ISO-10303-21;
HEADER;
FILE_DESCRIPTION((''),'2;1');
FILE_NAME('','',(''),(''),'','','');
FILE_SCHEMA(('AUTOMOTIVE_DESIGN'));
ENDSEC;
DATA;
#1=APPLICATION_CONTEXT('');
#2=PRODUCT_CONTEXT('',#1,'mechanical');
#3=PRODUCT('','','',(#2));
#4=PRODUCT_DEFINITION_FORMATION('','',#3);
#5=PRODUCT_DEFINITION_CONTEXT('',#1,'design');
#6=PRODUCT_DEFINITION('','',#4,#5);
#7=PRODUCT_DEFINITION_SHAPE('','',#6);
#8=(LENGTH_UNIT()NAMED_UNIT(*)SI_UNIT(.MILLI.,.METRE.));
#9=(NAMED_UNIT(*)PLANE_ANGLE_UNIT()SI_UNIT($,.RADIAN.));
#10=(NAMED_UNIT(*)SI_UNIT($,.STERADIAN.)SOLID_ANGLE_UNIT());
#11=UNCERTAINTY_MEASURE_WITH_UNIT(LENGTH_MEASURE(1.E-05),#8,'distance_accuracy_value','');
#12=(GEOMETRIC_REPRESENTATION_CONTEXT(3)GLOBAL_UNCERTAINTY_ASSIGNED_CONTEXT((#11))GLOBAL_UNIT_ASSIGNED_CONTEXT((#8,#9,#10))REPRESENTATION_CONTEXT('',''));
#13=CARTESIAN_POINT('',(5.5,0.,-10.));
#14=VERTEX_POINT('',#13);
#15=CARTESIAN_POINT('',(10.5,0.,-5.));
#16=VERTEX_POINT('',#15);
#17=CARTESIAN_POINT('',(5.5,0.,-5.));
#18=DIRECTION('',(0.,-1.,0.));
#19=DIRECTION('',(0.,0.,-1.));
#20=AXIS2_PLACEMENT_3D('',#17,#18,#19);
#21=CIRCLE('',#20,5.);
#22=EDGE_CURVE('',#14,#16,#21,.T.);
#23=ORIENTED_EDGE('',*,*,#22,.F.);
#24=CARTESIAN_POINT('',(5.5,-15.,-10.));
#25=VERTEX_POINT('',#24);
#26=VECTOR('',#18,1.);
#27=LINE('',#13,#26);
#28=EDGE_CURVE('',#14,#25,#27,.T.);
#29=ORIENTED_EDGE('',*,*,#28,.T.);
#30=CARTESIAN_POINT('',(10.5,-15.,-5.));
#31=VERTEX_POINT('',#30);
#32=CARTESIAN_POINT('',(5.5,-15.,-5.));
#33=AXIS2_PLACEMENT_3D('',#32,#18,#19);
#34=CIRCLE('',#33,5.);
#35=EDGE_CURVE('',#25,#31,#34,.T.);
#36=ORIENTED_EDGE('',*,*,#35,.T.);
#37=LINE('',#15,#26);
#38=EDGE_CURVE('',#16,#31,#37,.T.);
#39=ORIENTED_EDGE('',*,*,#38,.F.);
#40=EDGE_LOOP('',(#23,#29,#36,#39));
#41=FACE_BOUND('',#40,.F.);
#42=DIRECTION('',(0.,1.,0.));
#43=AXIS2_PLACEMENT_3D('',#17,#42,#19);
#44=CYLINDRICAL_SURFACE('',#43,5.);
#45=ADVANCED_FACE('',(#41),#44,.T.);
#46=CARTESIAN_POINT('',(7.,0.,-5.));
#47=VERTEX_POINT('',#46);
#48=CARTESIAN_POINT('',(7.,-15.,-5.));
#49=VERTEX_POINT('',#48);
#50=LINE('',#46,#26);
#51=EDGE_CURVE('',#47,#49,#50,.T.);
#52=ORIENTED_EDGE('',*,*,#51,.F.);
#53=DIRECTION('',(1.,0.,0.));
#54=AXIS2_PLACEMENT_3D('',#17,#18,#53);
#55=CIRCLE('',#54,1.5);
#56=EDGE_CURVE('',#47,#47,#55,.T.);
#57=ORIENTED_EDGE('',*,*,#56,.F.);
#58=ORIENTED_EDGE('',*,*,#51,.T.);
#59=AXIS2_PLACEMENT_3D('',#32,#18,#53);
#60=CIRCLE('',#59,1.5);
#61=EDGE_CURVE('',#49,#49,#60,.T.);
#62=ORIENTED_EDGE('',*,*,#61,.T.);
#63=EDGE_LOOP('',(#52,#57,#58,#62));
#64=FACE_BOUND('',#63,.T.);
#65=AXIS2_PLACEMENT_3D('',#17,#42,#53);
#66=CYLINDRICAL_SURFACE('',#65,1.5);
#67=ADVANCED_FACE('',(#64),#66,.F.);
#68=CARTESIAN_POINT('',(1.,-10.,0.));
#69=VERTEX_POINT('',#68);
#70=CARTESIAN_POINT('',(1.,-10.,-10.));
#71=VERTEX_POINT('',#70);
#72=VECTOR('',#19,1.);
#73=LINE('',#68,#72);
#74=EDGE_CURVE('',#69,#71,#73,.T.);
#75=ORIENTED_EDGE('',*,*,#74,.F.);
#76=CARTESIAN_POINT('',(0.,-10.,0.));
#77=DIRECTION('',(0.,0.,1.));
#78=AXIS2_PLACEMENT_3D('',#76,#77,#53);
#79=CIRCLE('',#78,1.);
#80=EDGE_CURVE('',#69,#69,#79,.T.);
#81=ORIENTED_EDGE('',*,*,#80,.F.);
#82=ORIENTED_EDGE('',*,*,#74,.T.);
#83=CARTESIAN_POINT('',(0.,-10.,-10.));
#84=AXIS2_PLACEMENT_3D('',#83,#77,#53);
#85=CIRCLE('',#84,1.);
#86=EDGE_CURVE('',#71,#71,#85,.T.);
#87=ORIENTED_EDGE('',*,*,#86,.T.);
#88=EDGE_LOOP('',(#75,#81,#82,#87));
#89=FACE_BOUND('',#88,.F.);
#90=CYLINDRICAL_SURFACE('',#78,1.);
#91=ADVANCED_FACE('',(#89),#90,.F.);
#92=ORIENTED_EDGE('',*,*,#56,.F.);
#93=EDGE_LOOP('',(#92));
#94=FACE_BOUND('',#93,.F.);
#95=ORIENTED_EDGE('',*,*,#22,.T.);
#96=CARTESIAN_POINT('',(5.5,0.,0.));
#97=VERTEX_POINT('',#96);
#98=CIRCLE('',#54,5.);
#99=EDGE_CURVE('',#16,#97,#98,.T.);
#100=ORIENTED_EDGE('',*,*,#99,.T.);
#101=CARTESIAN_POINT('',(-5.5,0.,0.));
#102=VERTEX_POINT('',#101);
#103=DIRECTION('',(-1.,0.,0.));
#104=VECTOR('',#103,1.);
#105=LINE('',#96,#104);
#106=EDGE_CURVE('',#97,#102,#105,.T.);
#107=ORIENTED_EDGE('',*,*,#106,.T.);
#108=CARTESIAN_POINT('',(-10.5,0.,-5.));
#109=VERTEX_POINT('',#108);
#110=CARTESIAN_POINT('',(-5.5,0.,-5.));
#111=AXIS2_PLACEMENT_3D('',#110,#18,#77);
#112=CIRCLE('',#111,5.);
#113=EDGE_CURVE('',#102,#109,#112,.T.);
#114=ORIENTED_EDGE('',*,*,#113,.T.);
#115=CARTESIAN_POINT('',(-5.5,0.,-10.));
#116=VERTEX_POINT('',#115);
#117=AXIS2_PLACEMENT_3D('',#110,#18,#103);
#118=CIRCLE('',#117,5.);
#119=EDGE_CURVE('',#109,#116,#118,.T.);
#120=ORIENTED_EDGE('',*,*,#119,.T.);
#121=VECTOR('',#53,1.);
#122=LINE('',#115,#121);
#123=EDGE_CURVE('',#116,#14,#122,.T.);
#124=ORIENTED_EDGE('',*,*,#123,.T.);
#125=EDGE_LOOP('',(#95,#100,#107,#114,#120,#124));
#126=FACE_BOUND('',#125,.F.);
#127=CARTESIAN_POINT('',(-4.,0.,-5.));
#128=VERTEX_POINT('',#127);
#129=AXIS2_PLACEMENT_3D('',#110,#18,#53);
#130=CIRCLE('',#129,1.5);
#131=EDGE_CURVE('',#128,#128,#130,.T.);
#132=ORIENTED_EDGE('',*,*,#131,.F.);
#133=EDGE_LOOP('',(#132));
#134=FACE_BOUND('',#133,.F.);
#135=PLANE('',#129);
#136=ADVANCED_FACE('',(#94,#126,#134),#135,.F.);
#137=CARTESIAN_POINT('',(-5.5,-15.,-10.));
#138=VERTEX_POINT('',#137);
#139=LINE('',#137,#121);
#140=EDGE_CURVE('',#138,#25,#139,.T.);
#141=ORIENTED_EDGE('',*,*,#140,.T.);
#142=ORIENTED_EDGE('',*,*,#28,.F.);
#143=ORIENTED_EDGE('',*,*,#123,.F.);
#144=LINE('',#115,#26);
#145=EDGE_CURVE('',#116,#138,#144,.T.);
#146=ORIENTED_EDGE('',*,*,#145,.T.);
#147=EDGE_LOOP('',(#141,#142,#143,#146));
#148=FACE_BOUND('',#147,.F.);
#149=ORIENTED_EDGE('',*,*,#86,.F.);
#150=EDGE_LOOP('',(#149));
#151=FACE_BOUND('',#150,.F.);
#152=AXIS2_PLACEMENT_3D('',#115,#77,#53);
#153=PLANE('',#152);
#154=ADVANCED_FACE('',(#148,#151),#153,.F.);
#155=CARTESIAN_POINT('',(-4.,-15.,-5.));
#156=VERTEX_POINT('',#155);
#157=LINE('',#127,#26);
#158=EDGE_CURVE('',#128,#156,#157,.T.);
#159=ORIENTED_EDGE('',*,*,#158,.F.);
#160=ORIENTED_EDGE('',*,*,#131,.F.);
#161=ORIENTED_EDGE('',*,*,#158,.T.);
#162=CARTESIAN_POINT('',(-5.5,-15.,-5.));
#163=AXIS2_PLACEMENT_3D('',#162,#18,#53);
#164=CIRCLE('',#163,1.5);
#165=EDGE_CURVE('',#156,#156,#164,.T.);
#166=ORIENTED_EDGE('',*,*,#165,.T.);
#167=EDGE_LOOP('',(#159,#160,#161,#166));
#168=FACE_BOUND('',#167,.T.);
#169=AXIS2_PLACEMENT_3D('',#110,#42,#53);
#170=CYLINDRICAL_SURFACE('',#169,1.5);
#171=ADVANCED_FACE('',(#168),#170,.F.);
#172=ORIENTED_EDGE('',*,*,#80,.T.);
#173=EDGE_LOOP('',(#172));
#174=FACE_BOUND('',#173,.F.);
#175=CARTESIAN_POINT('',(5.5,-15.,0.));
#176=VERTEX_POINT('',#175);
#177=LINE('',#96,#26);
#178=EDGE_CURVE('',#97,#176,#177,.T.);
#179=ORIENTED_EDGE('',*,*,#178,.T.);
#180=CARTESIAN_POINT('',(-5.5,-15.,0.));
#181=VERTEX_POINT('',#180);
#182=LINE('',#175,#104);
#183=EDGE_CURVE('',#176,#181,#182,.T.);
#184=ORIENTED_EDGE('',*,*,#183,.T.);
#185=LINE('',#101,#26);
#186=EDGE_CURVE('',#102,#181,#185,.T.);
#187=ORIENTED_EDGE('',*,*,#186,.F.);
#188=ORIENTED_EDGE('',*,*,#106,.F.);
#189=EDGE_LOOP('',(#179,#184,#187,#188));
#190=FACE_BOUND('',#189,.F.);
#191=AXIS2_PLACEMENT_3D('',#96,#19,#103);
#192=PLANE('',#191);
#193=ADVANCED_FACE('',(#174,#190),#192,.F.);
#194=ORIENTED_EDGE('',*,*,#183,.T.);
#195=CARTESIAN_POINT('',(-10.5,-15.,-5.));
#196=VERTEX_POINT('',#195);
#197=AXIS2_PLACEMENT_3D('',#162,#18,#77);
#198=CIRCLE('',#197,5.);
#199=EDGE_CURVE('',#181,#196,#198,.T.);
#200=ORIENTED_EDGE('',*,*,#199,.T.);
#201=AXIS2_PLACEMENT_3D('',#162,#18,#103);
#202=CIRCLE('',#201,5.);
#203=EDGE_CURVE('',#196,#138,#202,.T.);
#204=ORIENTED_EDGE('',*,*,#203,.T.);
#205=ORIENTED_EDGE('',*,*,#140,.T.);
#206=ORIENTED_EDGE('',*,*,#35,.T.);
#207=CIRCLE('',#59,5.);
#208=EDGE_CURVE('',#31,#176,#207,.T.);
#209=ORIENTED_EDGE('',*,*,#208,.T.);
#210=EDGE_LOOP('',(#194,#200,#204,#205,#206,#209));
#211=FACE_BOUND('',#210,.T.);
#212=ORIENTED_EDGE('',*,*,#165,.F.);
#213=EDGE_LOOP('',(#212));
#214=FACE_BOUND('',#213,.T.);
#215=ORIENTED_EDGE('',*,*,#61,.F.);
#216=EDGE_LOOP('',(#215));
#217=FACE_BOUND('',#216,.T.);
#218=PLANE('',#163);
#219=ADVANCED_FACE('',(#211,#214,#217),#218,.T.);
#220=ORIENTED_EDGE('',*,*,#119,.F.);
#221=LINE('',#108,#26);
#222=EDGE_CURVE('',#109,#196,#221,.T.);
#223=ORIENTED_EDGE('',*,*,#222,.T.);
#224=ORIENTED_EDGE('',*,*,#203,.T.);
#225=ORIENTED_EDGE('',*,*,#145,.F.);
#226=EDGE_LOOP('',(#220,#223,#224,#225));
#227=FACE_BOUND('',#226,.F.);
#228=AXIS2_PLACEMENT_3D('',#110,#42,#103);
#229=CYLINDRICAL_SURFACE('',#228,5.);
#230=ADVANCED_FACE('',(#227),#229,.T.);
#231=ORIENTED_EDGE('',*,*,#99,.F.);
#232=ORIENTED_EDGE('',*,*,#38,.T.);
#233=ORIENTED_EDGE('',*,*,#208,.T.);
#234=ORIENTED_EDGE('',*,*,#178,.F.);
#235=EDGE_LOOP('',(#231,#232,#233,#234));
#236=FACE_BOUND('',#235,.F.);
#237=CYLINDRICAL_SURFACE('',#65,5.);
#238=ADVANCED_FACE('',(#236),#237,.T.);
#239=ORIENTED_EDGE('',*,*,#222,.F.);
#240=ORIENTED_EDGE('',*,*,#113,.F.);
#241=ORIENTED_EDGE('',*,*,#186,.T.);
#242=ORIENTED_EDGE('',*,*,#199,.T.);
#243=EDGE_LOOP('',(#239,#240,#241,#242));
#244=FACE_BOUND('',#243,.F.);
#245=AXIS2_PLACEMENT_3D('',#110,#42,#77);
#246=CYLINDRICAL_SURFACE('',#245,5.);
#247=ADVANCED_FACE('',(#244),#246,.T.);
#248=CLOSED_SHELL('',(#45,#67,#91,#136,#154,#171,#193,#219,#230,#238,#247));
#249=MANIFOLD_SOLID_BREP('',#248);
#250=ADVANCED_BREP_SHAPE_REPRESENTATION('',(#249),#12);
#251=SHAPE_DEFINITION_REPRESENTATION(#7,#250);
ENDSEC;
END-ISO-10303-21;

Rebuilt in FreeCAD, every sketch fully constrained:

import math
import FreeCAD as App
import Part
import Sketcher
from FreeCAD import Vector
Q = App.Units.Quantity

doc = App.newDocument("Part")
body = doc.addObject("PartDesign::Body", "Body")

sketch1 = body.newObject("Sketcher::SketchObject", "Sketch")
sketch1.AttachmentSupport = (doc.getObject("XZ_Plane"), [""])
sketch1.MapMode = "FlatFace"
sketch1.addGeometry(Part.ArcOfCircle(Part.Circle(Vector(-5.5, -5, 0), Vector(0, 0, 1), 5), math.radians(90), math.radians(180)), False)
sketch1.addGeometry(Part.ArcOfCircle(Part.Circle(Vector(-5.5, -5, 0), Vector(0, 0, 1), 5), math.radians(180), math.radians(270)), False)
sketch1.addGeometry(Part.LineSegment(Vector(-5.5, -10, 0), Vector(5.5, -10, 0)), False)
sketch1.addGeometry(Part.ArcOfCircle(Part.Circle(Vector(5.5, -5, 0), Vector(0, 0, 1), 5), math.radians(-90), math.radians(0)), False)
sketch1.addGeometry(Part.ArcOfCircle(Part.Circle(Vector(5.5, -5, 0), Vector(0, 0, 1), 5), math.radians(0), math.radians(90)), False)
sketch1.addGeometry(Part.LineSegment(Vector(5.5, 0, 0), Vector(-5.5, 0, 0)), False)
sketch1.addGeometry(Part.Circle(Vector(-5.5, -5, 0), Vector(0, 0, 1), 1.5), False)
sketch1.addGeometry(Part.Circle(Vector(5.5, -5, 0), Vector(0, 0, 1), 1.5), False)
sketch1.addConstraint(Sketcher.Constraint("Tangent", 0, 2, 1, 1))
sketch1.addConstraint(Sketcher.Constraint("Tangent", 1, 2, 2, 1))
sketch1.addConstraint(Sketcher.Constraint("Tangent", 2, 2, 3, 1))
sketch1.addConstraint(Sketcher.Constraint("Tangent", 3, 2, 4, 1))
sketch1.addConstraint(Sketcher.Constraint("Tangent", 4, 2, 5, 1))
sketch1.addConstraint(Sketcher.Constraint("Tangent", 5, 2, 0, 1))
sketch1.addConstraint(Sketcher.Constraint("Horizontal", 2))
sketch1.addConstraint(Sketcher.Constraint("Horizontal", 5))
sketch1.addConstraint(Sketcher.Constraint("Coincident", 6, 3, 0, 3))
sketch1.addConstraint(Sketcher.Constraint("Coincident", 7, 3, 3, 3))
sketch1.addConstraint(Sketcher.Constraint("Equal", 0, 1))
sketch1.addConstraint(Sketcher.Constraint("Equal", 1, 3))
sketch1.addConstraint(Sketcher.Constraint("Equal", 6, 7))
sketch1.addConstraint(Sketcher.Constraint("Symmetric", 4, 2, 5, 2, -1, 1))
sketch1.addConstraint(Sketcher.Constraint("Horizontal", 7, 3, 0, 2))
sketch1.addConstraint(Sketcher.Constraint("Horizontal", 0, 2, 3, 2))
sketch1.addConstraint(Sketcher.Constraint("Diameter", 6, Q("3 mm")))
sketch1.addConstraint(Sketcher.Constraint("Radius", 0, Q("5 mm")))
sketch1.addConstraint(Sketcher.Constraint("DistanceX", 2, 1, 2, 2, Q("11 mm")))
pad1 = body.newObject("PartDesign::Pad", "Pad")
pad1.Profile = sketch1
pad1.Length = 15

sketch2 = body.newObject("Sketcher::SketchObject", "Sketch001")
sketch2.AttachmentSupport = (doc.getObject("XY_Plane"), [""])
sketch2.MapMode = "FlatFace"
sketch2.addGeometry(Part.Circle(Vector(0, -10, 0), Vector(0, 0, 1), 1), False)
sketch2.addConstraint(Sketcher.Constraint("PointOnObject", 0, 3, -2))
sketch2.addConstraint(Sketcher.Constraint("Diameter", 0, Q("2 mm")))
sketch2.addConstraint(Sketcher.Constraint("DistanceY", 0, 3, -1, 1, Q("10 mm")))
pocket1 = body.newObject("PartDesign::Pocket", "Pocket")
pocket1.Profile = sketch2
pocket1.Length = 10

doc.recompute()
